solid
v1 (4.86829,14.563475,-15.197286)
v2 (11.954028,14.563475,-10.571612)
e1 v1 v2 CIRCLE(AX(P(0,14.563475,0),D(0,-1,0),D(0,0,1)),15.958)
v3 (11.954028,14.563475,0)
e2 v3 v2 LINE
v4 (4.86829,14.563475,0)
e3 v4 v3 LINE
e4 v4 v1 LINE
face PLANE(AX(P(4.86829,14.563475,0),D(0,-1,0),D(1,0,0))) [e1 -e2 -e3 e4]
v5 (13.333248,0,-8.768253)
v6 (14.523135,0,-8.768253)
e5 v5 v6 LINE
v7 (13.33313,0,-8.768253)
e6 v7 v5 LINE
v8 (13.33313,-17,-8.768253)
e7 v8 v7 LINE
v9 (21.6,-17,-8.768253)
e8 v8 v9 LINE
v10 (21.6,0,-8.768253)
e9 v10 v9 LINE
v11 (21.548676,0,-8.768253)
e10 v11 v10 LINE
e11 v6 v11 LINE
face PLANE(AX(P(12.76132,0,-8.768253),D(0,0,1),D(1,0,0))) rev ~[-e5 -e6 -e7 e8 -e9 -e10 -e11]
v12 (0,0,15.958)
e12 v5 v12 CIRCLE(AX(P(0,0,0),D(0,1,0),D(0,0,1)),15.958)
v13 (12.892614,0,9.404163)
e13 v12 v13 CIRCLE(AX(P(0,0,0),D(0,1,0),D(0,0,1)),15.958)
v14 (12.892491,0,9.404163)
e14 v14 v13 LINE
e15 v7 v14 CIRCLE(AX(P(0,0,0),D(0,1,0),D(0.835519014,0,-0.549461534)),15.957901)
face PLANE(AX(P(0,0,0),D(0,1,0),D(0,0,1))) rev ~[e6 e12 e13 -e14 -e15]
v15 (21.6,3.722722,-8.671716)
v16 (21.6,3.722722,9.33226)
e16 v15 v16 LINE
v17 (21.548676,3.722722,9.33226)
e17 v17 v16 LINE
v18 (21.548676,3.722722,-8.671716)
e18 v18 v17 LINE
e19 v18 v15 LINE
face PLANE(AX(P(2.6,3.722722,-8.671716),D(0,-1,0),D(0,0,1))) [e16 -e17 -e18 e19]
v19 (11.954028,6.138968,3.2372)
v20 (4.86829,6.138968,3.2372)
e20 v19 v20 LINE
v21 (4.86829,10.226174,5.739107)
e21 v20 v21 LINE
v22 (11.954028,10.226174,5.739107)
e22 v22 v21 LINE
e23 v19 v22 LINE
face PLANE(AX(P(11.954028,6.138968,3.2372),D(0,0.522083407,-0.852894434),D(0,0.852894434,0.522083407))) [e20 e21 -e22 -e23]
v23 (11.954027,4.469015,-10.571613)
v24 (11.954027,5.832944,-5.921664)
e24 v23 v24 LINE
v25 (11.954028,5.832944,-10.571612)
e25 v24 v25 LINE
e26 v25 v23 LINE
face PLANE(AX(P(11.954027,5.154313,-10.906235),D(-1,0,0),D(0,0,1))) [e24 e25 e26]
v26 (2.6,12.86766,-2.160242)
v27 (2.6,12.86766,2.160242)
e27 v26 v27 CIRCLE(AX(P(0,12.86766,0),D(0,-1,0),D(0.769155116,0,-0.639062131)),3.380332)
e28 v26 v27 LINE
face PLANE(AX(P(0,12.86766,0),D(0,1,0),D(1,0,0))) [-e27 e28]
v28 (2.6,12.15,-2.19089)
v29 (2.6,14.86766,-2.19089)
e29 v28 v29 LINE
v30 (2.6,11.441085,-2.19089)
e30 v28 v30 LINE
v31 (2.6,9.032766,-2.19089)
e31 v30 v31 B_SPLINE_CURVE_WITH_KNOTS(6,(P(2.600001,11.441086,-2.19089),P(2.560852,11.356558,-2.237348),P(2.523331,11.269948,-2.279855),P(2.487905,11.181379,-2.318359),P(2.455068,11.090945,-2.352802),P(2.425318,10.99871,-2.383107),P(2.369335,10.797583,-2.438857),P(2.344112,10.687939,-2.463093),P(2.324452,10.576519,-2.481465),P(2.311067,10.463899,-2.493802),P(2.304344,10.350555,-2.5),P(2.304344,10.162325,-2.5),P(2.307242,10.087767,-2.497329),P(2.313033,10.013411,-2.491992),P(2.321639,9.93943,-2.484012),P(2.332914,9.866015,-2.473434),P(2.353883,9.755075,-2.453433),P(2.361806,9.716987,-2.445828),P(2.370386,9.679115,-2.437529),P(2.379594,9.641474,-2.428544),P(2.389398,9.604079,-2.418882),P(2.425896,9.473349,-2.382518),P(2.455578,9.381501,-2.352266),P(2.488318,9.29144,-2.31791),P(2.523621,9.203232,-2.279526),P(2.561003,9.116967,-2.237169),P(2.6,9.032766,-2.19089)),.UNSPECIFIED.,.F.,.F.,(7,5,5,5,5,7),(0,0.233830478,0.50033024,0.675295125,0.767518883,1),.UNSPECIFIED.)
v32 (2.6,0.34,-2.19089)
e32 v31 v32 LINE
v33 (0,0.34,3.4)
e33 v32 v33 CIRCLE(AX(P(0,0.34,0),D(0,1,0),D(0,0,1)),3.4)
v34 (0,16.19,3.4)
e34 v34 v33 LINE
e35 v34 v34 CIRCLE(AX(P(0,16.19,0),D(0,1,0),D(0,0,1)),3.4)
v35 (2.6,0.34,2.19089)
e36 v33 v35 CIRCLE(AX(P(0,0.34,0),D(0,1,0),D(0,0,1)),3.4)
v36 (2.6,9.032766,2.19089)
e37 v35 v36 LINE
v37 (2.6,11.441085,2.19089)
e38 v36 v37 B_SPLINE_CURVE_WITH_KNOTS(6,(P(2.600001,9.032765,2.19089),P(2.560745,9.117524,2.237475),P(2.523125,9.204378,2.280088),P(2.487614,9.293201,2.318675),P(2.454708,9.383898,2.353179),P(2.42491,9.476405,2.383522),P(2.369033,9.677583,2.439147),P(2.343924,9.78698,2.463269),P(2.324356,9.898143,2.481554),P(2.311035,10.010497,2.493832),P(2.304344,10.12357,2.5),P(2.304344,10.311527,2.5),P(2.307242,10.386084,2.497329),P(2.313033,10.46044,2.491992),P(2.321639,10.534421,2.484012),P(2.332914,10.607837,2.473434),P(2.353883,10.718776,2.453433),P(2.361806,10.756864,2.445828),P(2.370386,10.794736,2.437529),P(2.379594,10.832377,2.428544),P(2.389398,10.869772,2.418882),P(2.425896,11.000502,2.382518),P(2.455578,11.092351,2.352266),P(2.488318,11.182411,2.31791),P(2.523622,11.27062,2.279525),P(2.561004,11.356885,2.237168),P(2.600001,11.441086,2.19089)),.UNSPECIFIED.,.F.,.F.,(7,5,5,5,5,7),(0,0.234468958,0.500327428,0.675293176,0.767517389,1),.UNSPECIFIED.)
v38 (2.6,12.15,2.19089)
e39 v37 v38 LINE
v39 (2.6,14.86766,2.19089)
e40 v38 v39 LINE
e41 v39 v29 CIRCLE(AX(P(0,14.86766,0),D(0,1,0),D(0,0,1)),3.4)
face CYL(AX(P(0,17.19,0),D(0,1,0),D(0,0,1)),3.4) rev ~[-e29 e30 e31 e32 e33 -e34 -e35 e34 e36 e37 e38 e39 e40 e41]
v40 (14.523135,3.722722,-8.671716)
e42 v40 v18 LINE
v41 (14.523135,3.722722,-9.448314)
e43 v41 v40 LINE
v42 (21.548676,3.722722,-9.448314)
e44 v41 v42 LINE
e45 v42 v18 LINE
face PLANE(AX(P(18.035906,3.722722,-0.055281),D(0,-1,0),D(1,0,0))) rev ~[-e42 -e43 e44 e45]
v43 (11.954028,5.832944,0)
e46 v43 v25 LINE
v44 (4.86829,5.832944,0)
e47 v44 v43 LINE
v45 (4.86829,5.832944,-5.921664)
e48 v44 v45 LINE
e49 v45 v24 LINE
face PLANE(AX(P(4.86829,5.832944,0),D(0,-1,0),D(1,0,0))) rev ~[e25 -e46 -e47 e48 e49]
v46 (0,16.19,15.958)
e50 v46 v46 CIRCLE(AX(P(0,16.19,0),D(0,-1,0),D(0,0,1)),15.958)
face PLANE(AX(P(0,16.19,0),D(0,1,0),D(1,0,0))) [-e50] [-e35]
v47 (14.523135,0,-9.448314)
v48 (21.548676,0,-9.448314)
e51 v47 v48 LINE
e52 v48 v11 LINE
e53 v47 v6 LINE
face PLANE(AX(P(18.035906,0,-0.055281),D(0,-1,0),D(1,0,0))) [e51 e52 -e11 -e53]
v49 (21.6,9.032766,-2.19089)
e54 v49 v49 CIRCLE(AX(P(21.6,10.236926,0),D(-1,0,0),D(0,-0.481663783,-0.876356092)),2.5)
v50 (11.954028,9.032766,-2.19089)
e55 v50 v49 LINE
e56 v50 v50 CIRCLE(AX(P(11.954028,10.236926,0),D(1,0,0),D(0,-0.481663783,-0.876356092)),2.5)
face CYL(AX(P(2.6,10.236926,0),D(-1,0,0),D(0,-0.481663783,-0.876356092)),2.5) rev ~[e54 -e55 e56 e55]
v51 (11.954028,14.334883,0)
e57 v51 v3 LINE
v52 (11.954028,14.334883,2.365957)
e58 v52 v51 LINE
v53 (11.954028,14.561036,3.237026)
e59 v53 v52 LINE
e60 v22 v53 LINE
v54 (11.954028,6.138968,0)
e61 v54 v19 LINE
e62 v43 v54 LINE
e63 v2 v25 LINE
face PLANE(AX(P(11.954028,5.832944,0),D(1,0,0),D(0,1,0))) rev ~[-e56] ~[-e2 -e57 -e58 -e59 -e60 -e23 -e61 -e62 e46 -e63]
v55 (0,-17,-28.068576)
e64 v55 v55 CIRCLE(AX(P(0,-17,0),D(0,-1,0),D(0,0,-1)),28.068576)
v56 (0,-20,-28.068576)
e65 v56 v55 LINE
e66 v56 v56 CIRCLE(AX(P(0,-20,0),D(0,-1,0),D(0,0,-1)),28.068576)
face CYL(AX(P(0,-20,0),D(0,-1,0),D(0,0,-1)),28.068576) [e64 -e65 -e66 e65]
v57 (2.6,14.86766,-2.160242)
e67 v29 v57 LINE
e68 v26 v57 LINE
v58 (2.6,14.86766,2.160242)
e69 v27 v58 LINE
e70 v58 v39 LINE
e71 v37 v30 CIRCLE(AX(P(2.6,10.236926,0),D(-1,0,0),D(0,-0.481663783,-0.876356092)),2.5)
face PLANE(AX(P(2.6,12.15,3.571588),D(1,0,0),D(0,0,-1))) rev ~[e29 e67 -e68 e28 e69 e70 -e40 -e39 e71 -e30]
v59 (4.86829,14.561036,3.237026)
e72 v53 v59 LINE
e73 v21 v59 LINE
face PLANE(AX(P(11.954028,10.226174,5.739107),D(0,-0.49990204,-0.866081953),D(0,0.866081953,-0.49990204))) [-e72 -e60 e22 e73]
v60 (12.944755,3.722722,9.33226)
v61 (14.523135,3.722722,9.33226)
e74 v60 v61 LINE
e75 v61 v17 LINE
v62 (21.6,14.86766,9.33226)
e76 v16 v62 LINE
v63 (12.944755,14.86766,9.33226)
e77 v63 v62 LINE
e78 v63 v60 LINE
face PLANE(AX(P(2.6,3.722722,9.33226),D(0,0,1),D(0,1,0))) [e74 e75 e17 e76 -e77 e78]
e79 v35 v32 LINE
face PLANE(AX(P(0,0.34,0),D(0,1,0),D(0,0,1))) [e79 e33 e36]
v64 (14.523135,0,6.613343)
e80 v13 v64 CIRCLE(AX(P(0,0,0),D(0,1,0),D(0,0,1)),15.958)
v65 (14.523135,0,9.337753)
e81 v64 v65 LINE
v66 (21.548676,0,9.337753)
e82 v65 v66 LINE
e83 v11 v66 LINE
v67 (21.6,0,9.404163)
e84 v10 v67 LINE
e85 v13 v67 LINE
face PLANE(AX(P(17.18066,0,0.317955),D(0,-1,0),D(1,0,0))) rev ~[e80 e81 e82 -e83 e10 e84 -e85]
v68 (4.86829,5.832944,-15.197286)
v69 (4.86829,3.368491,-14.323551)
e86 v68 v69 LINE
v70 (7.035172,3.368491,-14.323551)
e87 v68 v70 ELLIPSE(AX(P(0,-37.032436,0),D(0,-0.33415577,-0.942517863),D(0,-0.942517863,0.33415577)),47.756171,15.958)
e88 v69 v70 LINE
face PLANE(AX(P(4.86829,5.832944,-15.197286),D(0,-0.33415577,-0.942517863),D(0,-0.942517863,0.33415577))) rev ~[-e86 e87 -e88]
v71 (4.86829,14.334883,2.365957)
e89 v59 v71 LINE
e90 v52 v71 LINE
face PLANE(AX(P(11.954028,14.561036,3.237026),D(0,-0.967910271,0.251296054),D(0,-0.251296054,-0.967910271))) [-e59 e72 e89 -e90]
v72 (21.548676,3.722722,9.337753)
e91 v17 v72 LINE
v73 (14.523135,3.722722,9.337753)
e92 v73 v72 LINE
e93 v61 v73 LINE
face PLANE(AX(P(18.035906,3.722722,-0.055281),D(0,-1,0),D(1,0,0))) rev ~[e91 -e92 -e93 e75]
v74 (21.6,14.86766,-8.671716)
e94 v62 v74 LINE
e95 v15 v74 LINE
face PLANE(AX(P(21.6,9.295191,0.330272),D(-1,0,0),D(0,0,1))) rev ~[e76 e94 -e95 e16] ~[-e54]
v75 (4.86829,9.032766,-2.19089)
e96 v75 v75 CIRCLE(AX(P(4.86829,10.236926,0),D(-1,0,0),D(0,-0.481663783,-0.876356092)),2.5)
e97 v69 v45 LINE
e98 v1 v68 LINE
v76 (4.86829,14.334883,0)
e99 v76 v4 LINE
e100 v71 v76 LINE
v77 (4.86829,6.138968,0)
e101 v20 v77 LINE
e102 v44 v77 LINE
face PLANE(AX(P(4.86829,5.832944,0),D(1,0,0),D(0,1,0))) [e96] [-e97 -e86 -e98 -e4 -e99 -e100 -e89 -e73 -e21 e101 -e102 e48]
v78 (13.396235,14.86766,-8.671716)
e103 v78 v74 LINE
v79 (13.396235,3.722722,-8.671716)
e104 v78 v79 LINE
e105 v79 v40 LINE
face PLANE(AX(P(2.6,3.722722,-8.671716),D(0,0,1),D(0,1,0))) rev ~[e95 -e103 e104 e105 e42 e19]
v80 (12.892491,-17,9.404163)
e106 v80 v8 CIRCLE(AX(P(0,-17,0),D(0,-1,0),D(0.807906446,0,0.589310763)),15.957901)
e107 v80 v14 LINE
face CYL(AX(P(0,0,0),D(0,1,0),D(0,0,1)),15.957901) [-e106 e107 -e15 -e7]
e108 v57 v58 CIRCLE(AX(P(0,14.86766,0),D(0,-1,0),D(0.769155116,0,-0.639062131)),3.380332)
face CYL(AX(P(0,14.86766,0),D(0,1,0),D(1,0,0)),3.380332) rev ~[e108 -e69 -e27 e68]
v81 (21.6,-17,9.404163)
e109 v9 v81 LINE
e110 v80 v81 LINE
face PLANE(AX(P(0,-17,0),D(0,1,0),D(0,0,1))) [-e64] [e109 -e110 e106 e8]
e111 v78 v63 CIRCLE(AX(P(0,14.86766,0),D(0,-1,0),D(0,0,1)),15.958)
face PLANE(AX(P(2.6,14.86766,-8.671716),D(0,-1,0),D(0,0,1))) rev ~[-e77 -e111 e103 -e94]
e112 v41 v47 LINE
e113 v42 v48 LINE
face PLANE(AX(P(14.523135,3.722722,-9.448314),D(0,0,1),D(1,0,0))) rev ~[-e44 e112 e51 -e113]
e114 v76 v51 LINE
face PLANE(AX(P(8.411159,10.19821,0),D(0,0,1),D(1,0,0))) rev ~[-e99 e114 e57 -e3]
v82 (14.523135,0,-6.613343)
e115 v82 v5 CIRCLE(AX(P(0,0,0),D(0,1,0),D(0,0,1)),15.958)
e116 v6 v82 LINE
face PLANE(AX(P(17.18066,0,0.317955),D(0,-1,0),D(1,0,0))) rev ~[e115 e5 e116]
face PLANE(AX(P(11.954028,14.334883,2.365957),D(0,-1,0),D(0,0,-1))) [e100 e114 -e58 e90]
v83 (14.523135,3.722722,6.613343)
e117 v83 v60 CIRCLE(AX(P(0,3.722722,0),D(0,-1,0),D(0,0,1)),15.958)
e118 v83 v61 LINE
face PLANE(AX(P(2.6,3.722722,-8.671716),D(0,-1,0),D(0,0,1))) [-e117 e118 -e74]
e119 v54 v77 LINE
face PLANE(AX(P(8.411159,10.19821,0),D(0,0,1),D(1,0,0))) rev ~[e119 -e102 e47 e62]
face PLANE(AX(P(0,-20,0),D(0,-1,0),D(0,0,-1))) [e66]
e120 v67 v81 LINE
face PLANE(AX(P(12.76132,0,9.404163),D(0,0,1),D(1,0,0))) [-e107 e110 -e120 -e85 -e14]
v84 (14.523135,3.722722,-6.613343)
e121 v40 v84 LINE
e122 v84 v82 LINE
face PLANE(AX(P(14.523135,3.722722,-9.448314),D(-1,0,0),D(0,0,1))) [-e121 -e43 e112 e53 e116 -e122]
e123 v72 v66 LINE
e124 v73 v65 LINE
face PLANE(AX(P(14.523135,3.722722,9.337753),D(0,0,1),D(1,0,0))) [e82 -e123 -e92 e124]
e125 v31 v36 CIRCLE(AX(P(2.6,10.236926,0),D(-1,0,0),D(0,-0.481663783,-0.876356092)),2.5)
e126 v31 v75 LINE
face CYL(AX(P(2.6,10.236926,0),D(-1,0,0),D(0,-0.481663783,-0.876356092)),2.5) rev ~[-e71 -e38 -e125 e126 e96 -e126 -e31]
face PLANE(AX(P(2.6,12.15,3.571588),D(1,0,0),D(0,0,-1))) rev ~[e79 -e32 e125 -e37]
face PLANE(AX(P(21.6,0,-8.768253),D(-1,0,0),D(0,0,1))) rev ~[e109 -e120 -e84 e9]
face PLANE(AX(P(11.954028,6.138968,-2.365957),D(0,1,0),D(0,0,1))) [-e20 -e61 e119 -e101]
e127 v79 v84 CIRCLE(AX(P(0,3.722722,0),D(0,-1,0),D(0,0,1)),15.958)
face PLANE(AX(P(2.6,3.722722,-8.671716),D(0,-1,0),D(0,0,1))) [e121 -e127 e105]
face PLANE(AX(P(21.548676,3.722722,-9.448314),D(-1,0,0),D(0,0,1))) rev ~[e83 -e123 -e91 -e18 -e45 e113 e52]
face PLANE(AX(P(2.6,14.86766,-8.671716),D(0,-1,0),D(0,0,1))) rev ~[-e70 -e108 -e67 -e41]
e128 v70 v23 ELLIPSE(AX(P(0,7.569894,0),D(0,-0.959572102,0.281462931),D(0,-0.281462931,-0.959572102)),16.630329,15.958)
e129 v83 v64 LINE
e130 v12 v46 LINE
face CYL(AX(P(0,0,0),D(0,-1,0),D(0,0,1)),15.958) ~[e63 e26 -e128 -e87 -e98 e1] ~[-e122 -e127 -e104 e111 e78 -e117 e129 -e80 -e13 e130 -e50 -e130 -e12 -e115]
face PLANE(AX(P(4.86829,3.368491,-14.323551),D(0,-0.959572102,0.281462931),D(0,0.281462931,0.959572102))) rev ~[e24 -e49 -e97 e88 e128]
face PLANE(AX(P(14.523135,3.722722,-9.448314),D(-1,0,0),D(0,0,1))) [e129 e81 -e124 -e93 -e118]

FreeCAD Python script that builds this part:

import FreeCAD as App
import Part
import Sketcher

V = App.Vector
Q = App.Units.Quantity


def add_polygon(sketch, points):
    """Adds a closed chain of lines whose ends are joined by coincident constraints."""
    first, n = sketch.GeometryCount, len(points)
    for a, b in zip(points, points[1:] + points[:1]):
        sketch.addGeometry(Part.LineSegment(App.Vector(*a, 0), App.Vector(*b, 0)), False)
    for i in range(n):
        sketch.addConstraint(Sketcher.Constraint("Coincident", first + i, 2, first + (i + 1) % n, 1))

doc = App.newDocument("Part")
body = doc.addObject("PartDesign::Body", "Body")

# Sketch on XZ plane
sketch1 = body.newObject("Sketcher::SketchObject", "Sketch")
sketch1.AttachmentSupport = (doc.getObject("XZ_Plane"), [""])
sketch1.MapMode = "FlatFace"
sketch1.addGeometry(Part.Circle(V(0, 0, 0), V(0, 0, 1), 16), False)
sketch1.addConstraint(Sketcher.Constraint("Coincident", 0, 3, -1, 1))
sketch1.addConstraint(Sketcher.Constraint("Diameter", 0, Q("31.916 mm")))
pad1 = body.newObject("PartDesign::Pad", "Pad")
pad1.Profile = sketch1
pad1.Length = 17.19
pad1.Reversed = True

# Sketch on XZ plane
sketch2 = body.newObject("Sketcher::SketchObject", "Sketch001")
sketch2.AttachmentSupport = (doc.getObject("XZ_Plane"), [""])
sketch2.MapMode = "FlatFace"
sketch2.AttachmentOffset = App.Placement(V(0, 0, -17.19), App.Rotation())
sketch2.addGeometry(Part.Circle(V(0, 0, 0), V(0, 0, 1), 3.4), False)
sketch2.addConstraint(Sketcher.Constraint("Coincident", 0, 3, -1, 1))
sketch2.addConstraint(Sketcher.Constraint("Diameter", 0, Q("6.8 mm")))
pocket1 = body.newObject("PartDesign::Pocket", "Pocket")
pocket1.Profile = sketch2
pocket1.Length = 16.85
pocket1.Reversed = True

# Sketch on XZ plane
sketch3 = body.newObject("Sketcher::SketchObject", "Sketch002")
sketch3.AttachmentSupport = (doc.getObject("XZ_Plane"), [""])
sketch3.MapMode = "FlatFace"
sketch3.AttachmentOffset = App.Placement(V(0, 0, -12.15), App.Rotation())
add_polygon(sketch3, [(2.6, -3.6), (2.6, 3.6), (4.2, 3.6), (4.2, -3.6)])  # lines 0-3
sketch3.addConstraint(Sketcher.Constraint("Vertical", 0))
sketch3.addConstraint(Sketcher.Constraint("Horizontal", 1))
sketch3.addConstraint(Sketcher.Constraint("Vertical", 2))
sketch3.addConstraint(Sketcher.Constraint("Horizontal", 3))
sketch3.addConstraint(Sketcher.Constraint("DistanceX", -1, 1, 0, 2, Q("2.6 mm")))
sketch3.addConstraint(Sketcher.Constraint("DistanceX", 1, 1, 1, 2, Q("1.550685 mm")))
sketch3.addConstraint(Sketcher.Constraint("DistanceY", 0, 1, 0, 2, Q("7.184216 mm")))
sketch3.addConstraint(Sketcher.Constraint("DistanceY", -1, 1, 0, 2, Q("3.571588 mm")))
pad2 = body.newObject("PartDesign::Pad", "Pad001")
pad2.Profile = sketch3
pad2.Length = 13.55

# Sketch on YZ plane
sketch4 = body.newObject("Sketcher::SketchObject", "Sketch003")
sketch4.AttachmentSupport = (doc.getObject("YZ_Plane"), [""])
sketch4.MapMode = "FlatFace"
sketch4.AttachmentOffset = App.Placement(V(0, 0, 2.6), App.Rotation())
add_polygon(sketch4, [(15, -9), (4, -9), (4, 9), (15, 9)])  # lines 0-3
sketch4.addConstraint(Sketcher.Constraint("Horizontal", 0))
sketch4.addConstraint(Sketcher.Constraint("Vertical", 1))
sketch4.addConstraint(Sketcher.Constraint("Horizontal", 2))
sketch4.addConstraint(Sketcher.Constraint("Vertical", 3))
sketch4.addConstraint(Sketcher.Constraint("DistanceX", 0, 2, 0, 1, Q("11.144938 mm")))
sketch4.addConstraint(Sketcher.Constraint("DistanceY", 1, 1, 1, 2, Q("18.003976 mm")))
sketch4.addConstraint(Sketcher.Constraint("DistanceY", -1, 1, 1, 2, Q("9.33226 mm")))
sketch4.addConstraint(Sketcher.Constraint("DistanceX", -1, 1, 2, 2, Q("14.86766 mm")))
pad3 = body.newObject("PartDesign::Pad", "Pad002")
pad3.Profile = sketch4
pad3.Length = 19

# Sketch on YZ plane
sketch5 = body.newObject("Sketcher::SketchObject", "Sketch004")
sketch5.AttachmentSupport = (doc.getObject("YZ_Plane"), [""])
sketch5.MapMode = "FlatFace"
sketch5.AttachmentOffset = App.Placement(V(0, 0, 2.6), App.Rotation())
sketch5.addGeometry(Part.Circle(V(10.2, 0, 0), V(0, 0, 1), 2.5), False)
sketch5.addConstraint(Sketcher.Constraint("PointOnObject", 0, 3, -1))
sketch5.addConstraint(Sketcher.Constraint("Diameter", 0, Q("5 mm")))
sketch5.addConstraint(Sketcher.Constraint("DistanceX", -1, 1, 0, 3, Q("10.236926 mm")))
pocket2 = body.newObject("PartDesign::Pocket", "Pocket001")
pocket2.Profile = sketch5
pocket2.Type = "TwoLengths"
pocket2.Length = 1
pocket2.Length2 = 19

# Sketch on XZ plane
sketch6 = body.newObject("Sketcher::SketchObject", "Sketch005")
sketch6.AttachmentSupport = (doc.getObject("XZ_Plane"), [""])
sketch6.MapMode = "FlatFace"
sketch6.addGeometry(Part.Circle(V(0, 0, 0), V(0, 0, 1), 50), False)
sketch6.addConstraint(Sketcher.Constraint("Coincident", 0, 3, -1, 1))
sketch6.addConstraint(Sketcher.Constraint("Diameter", 0, Q("100 mm")))
pad4 = body.newObject("PartDesign::Pad", "Pad003")
pad4.Profile = sketch6
pad4.Length = 20

# Sketch on XZ plane
sketch7 = body.newObject("Sketcher::SketchObject", "Sketch006")
sketch7.AttachmentSupport = (doc.getObject("XZ_Plane"), [""])
sketch7.MapMode = "FlatFace"
sketch7.addGeometry(Part.Circle(V(0, 0, 0), V(0, 0, 1), 43), False)
sketch7.addGeometry(Part.Circle(V(0, 0, 0), V(0, 0, 1), 16), False)
sketch7.addConstraint(Sketcher.Constraint("Coincident", 0, 3, -1, 1))
sketch7.addConstraint(Sketcher.Constraint("Coincident", 1, 3, -1, 1))
sketch7.addConstraint(Sketcher.Constraint("Diameter", 0, Q("86 mm")))
sketch7.addConstraint(Sketcher.Constraint("Diameter", 1, Q("31.915802 mm")))
pocket3 = body.newObject("PartDesign::Pocket", "Pocket002")
pocket3.Profile = sketch7
pocket3.Length = 17
pocket3.Reversed = True

# Sketch on XZ plane
sketch8 = body.newObject("Sketcher::SketchObject", "Sketch007")
sketch8.AttachmentSupport = (doc.getObject("XZ_Plane"), [""])
sketch8.MapMode = "FlatFace"
sketch8.addGeometry(Part.Circle(V(0, 0, 0), V(0, 0, 1), 50), False)
sketch8.addGeometry(Part.Circle(V(0, 0, 0), V(0, 0, 1), 43), False)
sketch8.addConstraint(Sketcher.Constraint("Coincident", 0, 3, -1, 1))
sketch8.addConstraint(Sketcher.Constraint("Coincident", 1, 3, -1, 1))
sketch8.addConstraint(Sketcher.Constraint("Diameter", 0, Q("100 mm")))
sketch8.addConstraint(Sketcher.Constraint("Diameter", 1, Q("85.393367 mm")))
pad5 = body.newObject("PartDesign::Pad", "Pad004")
pad5.Profile = sketch8
pad5.Length = 17
pad5.Reversed = True

# Sketch on XY plane
sketch9 = body.newObject("Sketcher::SketchObject", "Sketch008")
sketch9.AttachmentSupport = (doc.getObject("XY_Plane"), [""])
sketch9.MapMode = "FlatFace"
add_polygon(sketch9, [(5, 15), (5, 6), (12, 6), (12, 15)])  # lines 0-3
sketch9.addConstraint(Sketcher.Constraint("Vertical", 0))
sketch9.addConstraint(Sketcher.Constraint("Horizontal", 1))
sketch9.addConstraint(Sketcher.Constraint("Vertical", 2))
sketch9.addConstraint(Sketcher.Constraint("Horizontal", 3))
sketch9.addConstraint(Sketcher.Constraint("DistanceY", 0, 2, 0, 1, Q("8.730532 mm")))
sketch9.addConstraint(Sketcher.Constraint("DistanceX", 1, 1, 1, 2, Q("7.085737 mm")))
sketch9.addConstraint(Sketcher.Constraint("DistanceX", -1, 1, 0, 2, Q("4.86829 mm")))
sketch9.addConstraint(Sketcher.Constraint("DistanceY", -1, 1, 0, 2, Q("5.832944 mm")))
pocket4 = body.newObject("PartDesign::Pocket", "Pocket003")
pocket4.Profile = sketch9
pocket4.Type = "ThroughAll"

# Sketch on YZ plane
sketch10 = body.newObject("Sketcher::SketchObject", "Sketch009")
sketch10.AttachmentSupport = (doc.getObject("YZ_Plane"), [""])
sketch10.MapMode = "FlatFace"
sketch10.AttachmentOffset = App.Placement(V(0, 0, 11.954028), App.Rotation())
add_polygon(sketch10, [(10.2, -4.7), (6.1, -2.4), (6.1, 2.4), (10.2, 4.7), (14.3, 2.4), (14.3, -2.4)])  # lines 0-5
sketch10.addConstraint(Sketcher.Constraint("Vertical", 1))
sketch10.addConstraint(Sketcher.Constraint("Vertical", 4))
sketch10.addConstraint(Sketcher.Constraint("Symmetric", 2, 2, 5, 2, -1))
sketch10.addConstraint(Sketcher.Constraint("Parallel", 0, 3))
sketch10.addConstraint(Sketcher.Constraint("Parallel", 2, 5))
sketch10.addConstraint(Sketcher.Constraint("Horizontal", 1, 2, 3, 2))
sketch10.addConstraint(Sketcher.Constraint("Horizontal", 0, 2, 4, 2))
sketch10.addConstraint(Sketcher.Constraint("Angle", 0, Q("150 deg")))
sketch10.addConstraint(Sketcher.Constraint("DistanceY", 1, 1, 1, 2, Q("4.731913 mm")))
sketch10.addConstraint(Sketcher.Constraint("DistanceX", -1, 1, 0, 2, Q("6.138968 mm")))
sketch10.addConstraint(Sketcher.Constraint("DistanceY", 0, 2, 2, 2, Q("7.09787 mm")))
pocket5 = body.newObject("PartDesign::Pocket", "Pocket004")
pocket5.Profile = sketch10
pocket5.Length = 7.085737

# Sketch on YZ plane
sketch11 = body.newObject("Sketcher::SketchObject", "Sketch010")
sketch11.AttachmentSupport = (doc.getObject("YZ_Plane"), [""])
sketch11.MapMode = "FlatFace"
sketch11.AttachmentOffset = App.Placement(V(0, 0, 21.6), App.Rotation())
sketch11.addGeometry(Part.Circle(V(10, 0, 0), V(0, 0, 1), 6), False)
sketch11.addConstraint(Sketcher.Constraint("PointOnObject", 0, 3, -1))
sketch11.addConstraint(Sketcher.Constraint("Diameter", 0, Q("12 mm")))
sketch11.addConstraint(Sketcher.Constraint("DistanceX", -1, 1, 0, 3, Q("10.236926 mm")))
pocket6 = body.newObject("PartDesign::Pocket", "Pocket005")
pocket6.Profile = sketch11
pocket6.Length = 40
pocket6.Reversed = True

# Sketch on an angled plane
sketch12 = body.newObject("Sketcher::SketchObject", "Sketch011")
sketch12.Placement = App.Placement(V(9.351145, 0, 49.117778), App.Rotation(V(0.982355553, 0, -0.187022904), V(0, 0.999999999, 0), V(0.187022904, 0, 0.982355553), "ZXY"))
sketch12.addGeometry(Part.Circle(V(-7, -15, 0), V(0, 0, 1), 12), False)
sketch12.addConstraint(Sketcher.Constraint("Diameter", 0, Q("24 mm")))
sketch12.addConstraint(Sketcher.Constraint("DistanceX", 0, 3, -1, 1, Q("6.553799 mm")))
sketch12.addConstraint(Sketcher.Constraint("DistanceY", 0, 3, -1, 1, Q("15.044376 mm")))
pocket7 = body.newObject("PartDesign::Pocket", "Pocket006")
pocket7.Profile = sketch12
pocket7.Length = 5

# Sketch on an angled plane
sketch13 = body.newObject("Sketcher::SketchObject", "Sketch012")
sketch13.Placement = App.Placement(V(35.756785, 0, 34.949282), App.Rotation(V(0.698985638, 0, -0.715135706), V(0, 1, 0), V(0.715135706, 0, 0.698985638), "ZXY"))
sketch13.addGeometry(Part.Circle(V(4, 19, 0), V(0, 0, 1), 12), False)
sketch13.addConstraint(Sketcher.Constraint("Diameter", 0, Q("24 mm")))
sketch13.addConstraint(Sketcher.Constraint("DistanceY", -1, 1, 0, 3, Q("19.429209 mm")))
sketch13.addConstraint(Sketcher.Constraint("DistanceX", -1, 1, 0, 3, Q("3.558366 mm")))
pocket8 = body.newObject("PartDesign::Pocket", "Pocket007")
pocket8.Profile = sketch13
pocket8.Length = 5

# Sketch on an angled plane
sketch14 = body.newObject("Sketcher::SketchObject", "Sketch013")
sketch14.Placement = App.Placement(V(34.949282, 0, -35.756785), App.Rotation(V(-0.715135706, 0, -0.698985638), V(0, 1, 0), V(0.698985638, 0, -0.715135706), "ZXY"))
sketch14.addGeometry(Part.Circle(V(5, 18, 0), V(0, 0, 1), 13), False)
sketch14.addConstraint(Sketcher.Constraint("Diameter", 0, Q("25.107051 mm")))
sketch14.addConstraint(Sketcher.Constraint("DistanceX", -1, 1, 0, 3, Q("5.427738 mm")))
sketch14.addConstraint(Sketcher.Constraint("DistanceY", -1, 1, 0, 3, Q("18.490794 mm")))
pocket9 = body.newObject("PartDesign::Pocket", "Pocket008")
pocket9.Profile = sketch14
pocket9.Length = 5

# Sketch on an angled plane
sketch15 = body.newObject("Sketcher::SketchObject", "Sketch014")
sketch15.Placement = App.Placement(V(49.117778, 0, -9.351145), App.Rotation(V(-0.187022904, 0, -0.982355553), V(0, 0.999999999, 0), V(0.982355553, 0, -0.187022904), "ZXY"))
sketch15.addGeometry(Part.Circle(V(-5, -19, 0), V(0, 0, 1), 10), False)
sketch15.addConstraint(Sketcher.Constraint("Diameter", 0, Q("20 mm")))
sketch15.addConstraint(Sketcher.Constraint("DistanceX", 0, 3, -1, 1, Q("4.791176 mm")))
sketch15.addConstraint(Sketcher.Constraint("DistanceY", 0, 3, -1, 1, Q("19.221883 mm")))
pocket10 = body.newObject("PartDesign::Pocket", "Pocket009")
pocket10.Profile = sketch15
pocket10.Length = 5

# Sketch on an angled plane
sketch16 = body.newObject("Sketcher::SketchObject", "Sketch015")
sketch16.Placement = App.Placement(V(-0.570991, 0, -49.99674), App.Rotation(V(-0.999934792, 0, 0.011419823), V(0, 1.000000001, 0), V(-0.011419823, 0, -0.999934792), "ZXY"))
sketch16.addGeometry(Part.Circle(V(5, -20, 0), V(0, 0, 1), 12), False)
sketch16.addConstraint(Sketcher.Constraint("Diameter", 0, Q("23.930666 mm")))
sketch16.addConstraint(Sketcher.Constraint("DistanceY", 0, 3, -1, 1, Q("20.01777 mm")))
sketch16.addConstraint(Sketcher.Constraint("DistanceX", -1, 1, 0, 3, Q("4.525184 mm")))
pocket11 = body.newObject("PartDesign::Pocket", "Pocket010")
pocket11.Profile = sketch16
pocket11.Length = 5

# Sketch on an angled plane
sketch17 = body.newObject("Sketcher::SketchObject", "Sketch016")
sketch17.Placement = App.Placement(V(-41.343772, 0, -28.119255), App.Rotation(V(-0.56238511, 0, 0.826875437), V(0, 1, 0), V(-0.826875437, 0, -0.56238511), "ZXY"))
sketch17.addGeometry(Part.Circle(V(-3, 19, 0), V(0, 0, 1), 10), False)
sketch17.addConstraint(Sketcher.Constraint("Diameter", 0, Q("19.259362 mm")))
sketch17.addConstraint(Sketcher.Constraint("DistanceY", -1, 1, 0, 3, Q("18.643159 mm")))
sketch17.addConstraint(Sketcher.Constraint("DistanceX", 0, 3, -1, 1, Q("2.649824 mm")))
pocket12 = body.newObject("PartDesign::Pocket", "Pocket011")
pocket12.Profile = sketch17
pocket12.Length = 5

# Sketch on an angled plane
sketch18 = body.newObject("Sketcher::SketchObject", "Sketch017")
sketch18.Placement = App.Placement(V(-49.117778, 0, 9.351145), App.Rotation(V(0.187022904, 0, 0.982355553), V(0, 0.999999999, 0), V(-0.982355553, 0, 0.187022904), "ZXY"))
sketch18.addGeometry(Part.Circle(V(-4, -19, 0), V(0, 0, 1), 15), False)
sketch18.addConstraint(Sketcher.Constraint("Diameter", 0, Q("30.024823 mm")))
sketch18.addConstraint(Sketcher.Constraint("DistanceX", 0, 3, -1, 1, Q("4.497651 mm")))
sketch18.addConstraint(Sketcher.Constraint("DistanceY", 0, 3, -1, 1, Q("19.126377 mm")))
pocket13 = body.newObject("PartDesign::Pocket", "Pocket012")
pocket13.Profile = sketch18
pocket13.Length = 5

# Sketch on an angled plane
sketch19 = body.newObject("Sketcher::SketchObject", "Sketch018")
sketch19.Placement = App.Placement(V(-28.119255, 0, 41.343772), App.Rotation(V(0.826875437, 0, 0.56238511), V(0, 1, 0), V(-0.56238511, 0, 0.826875437), "ZXY"))
sketch19.addGeometry(Part.Circle(V(-2, 18, 0), V(0, 0, 1), 12), False)
sketch19.addConstraint(Sketcher.Constraint("Diameter", 0, Q("23.709424 mm")))
sketch19.addConstraint(Sketcher.Constraint("DistanceY", -1, 1, 0, 3, Q("17.622181 mm")))
sketch19.addConstraint(Sketcher.Constraint("DistanceX", 0, 3, -1, 1, Q("2.287517 mm")))
pocket14 = body.newObject("PartDesign::Pocket", "Pocket013")
pocket14.Profile = sketch19
pocket14.Length = 5

# Sketch on XZ plane
sketch20 = body.newObject("Sketcher::SketchObject", "Sketch019")
sketch20.AttachmentSupport = (doc.getObject("XZ_Plane"), [""])
sketch20.MapMode = "FlatFace"
add_polygon(sketch20, [(13, 9), (13, -9), (22, -9), (22, 9)])  # lines 0-3
sketch20.addConstraint(Sketcher.Constraint("Vertical", 0))
sketch20.addConstraint(Sketcher.Constraint("Horizontal", 1))
sketch20.addConstraint(Sketcher.Constraint("Vertical", 2))
sketch20.addConstraint(Sketcher.Constraint("Horizontal", 3))
sketch20.addConstraint(Sketcher.Constraint("DistanceX", -1, 1, 1, 2, Q("21.6 mm")))
sketch20.addConstraint(Sketcher.Constraint("DistanceX", 1, 1, 1, 2, Q("8.83868 mm")))
sketch20.addConstraint(Sketcher.Constraint("DistanceY", 0, 2, 0, 1, Q("18.172415 mm")))
sketch20.addConstraint(Sketcher.Constraint("DistanceY", 0, 2, -1, 1, Q("8.768253 mm")))
pad6 = body.newObject("PartDesign::Pad", "Pad005")
pad6.Profile = sketch20
pad6.Length = 17

# Sketch on XZ plane
sketch21 = body.newObject("Sketcher::SketchObject", "Sketch020")
sketch21.AttachmentSupport = (doc.getObject("XZ_Plane"), [""])
sketch21.MapMode = "FlatFace"
sketch21.AttachmentOffset = App.Placement(V(0, 0, -3.722722), App.Rotation())
add_polygon(sketch21, [(15, 9), (15, -9), (22, -9), (22, 9)])  # lines 0-3
sketch21.addConstraint(Sketcher.Constraint("Vertical", 0))
sketch21.addConstraint(Sketcher.Constraint("Horizontal", 1))
sketch21.addConstraint(Sketcher.Constraint("Vertical", 2))
sketch21.addConstraint(Sketcher.Constraint("Horizontal", 3))
sketch21.addConstraint(Sketcher.Constraint("DistanceX", 1, 1, 1, 2, Q("7.025541 mm")))
sketch21.addConstraint(Sketcher.Constraint("DistanceY", 0, 2, 0, 1, Q("18.786067 mm")))
sketch21.addConstraint(Sketcher.Constraint("DistanceX", -1, 1, 0, 2, Q("14.523135 mm")))
sketch21.addConstraint(Sketcher.Constraint("DistanceY", 0, 2, -1, 1, Q("9.448314 mm")))
pad7 = body.newObject("PartDesign::Pad", "Pad006")
pad7.Profile = sketch21
pad7.Length = 3.722722

# Sketch on XZ plane
sketch22 = body.newObject("Sketcher::SketchObject", "Sketch021")
sketch22.AttachmentSupport = (doc.getObject("XZ_Plane"), [""])
sketch22.MapMode = "FlatFace"
sketch22.AttachmentOffset = App.Placement(V(0, 0, -17.19), App.Rotation())
sketch22.addGeometry(Part.Circle(V(0, 0, 0), V(0, 0, 1), 26), False)
sketch22.addConstraint(Sketcher.Constraint("Coincident", 0, 3, -1, 1))
sketch22.addConstraint(Sketcher.Constraint("Diameter", 0, Q("52.673095 mm")))
pocket15 = body.newObject("PartDesign::Pocket", "Pocket014")
pocket15.Profile = sketch22
pocket15.Length = 1
pocket15.Reversed = True

# Sketch on XZ plane
sketch23 = body.newObject("Sketcher::SketchObject", "Sketch022")
sketch23.AttachmentSupport = (doc.getObject("XZ_Plane"), [""])
sketch23.MapMode = "FlatFace"
sketch23.AttachmentOffset = App.Placement(V(0, 0, -14.86766), App.Rotation())
sketch23.addGeometry(Part.Circle(V(0, 0, 0), V(0, 0, 1), 3.4), False)
sketch23.addConstraint(Sketcher.Constraint("Coincident", 0, 3, -1, 1))
sketch23.addConstraint(Sketcher.Constraint("Diameter", 0, Q("6.760665 mm")))
pocket16 = body.newObject("PartDesign::Pocket", "Pocket015")
pocket16.Profile = sketch23
pocket16.Length = 2
pocket16.Reversed = True

# Sketch on XZ plane
sketch24 = body.newObject("Sketcher::SketchObject", "Sketch023")
sketch24.AttachmentSupport = (doc.getObject("XZ_Plane"), [""])
sketch24.MapMode = "FlatFace"
sketch24.AttachmentOffset = App.Placement(V(0, 0, 20), App.Rotation())
sketch24.addGeometry(Part.Circle(V(0, 0, 0), V(0, 0, 1), 63), False)
sketch24.addGeometry(Part.Circle(V(0, 0, 0), V(0, 0, 1), 28), False)
sketch24.addConstraint(Sketcher.Constraint("Coincident", 0, 3, -1, 1))
sketch24.addConstraint(Sketcher.Constraint("Coincident", 1, 3, -1, 1))
sketch24.addConstraint(Sketcher.Constraint("Diameter", 1, Q("56.137151 mm")))
sketch24.addConstraint(Sketcher.Constraint("Diameter", 0, Q("126.648263 mm")))
pocket17 = body.newObject("PartDesign::Pocket", "Pocket016")
pocket17.Profile = sketch24
pocket17.Type = "ThroughAll"

# Sketch on YZ plane
sketch25 = body.newObject("Sketcher::SketchObject", "Sketch024")
sketch25.AttachmentSupport = (doc.getObject("YZ_Plane"), [""])
sketch25.MapMode = "FlatFace"
sketch25.AttachmentOffset = App.Placement(V(0, 0, 4.86829), App.Rotation())
add_polygon(sketch25, [(3.4, -14.3), (5.8, -15.2), (5.8, -5.9)])  # lines 0-2
sketch25.addConstraint(Sketcher.Constraint("Vertical", 1))
sketch25.addConstraint(Sketcher.Constraint("Distance", 2, Q("8.755869 mm")))
sketch25.addConstraint(Sketcher.Constraint("DistanceY", 1, 1, 1, 2, Q("9.275622 mm")))
sketch25.addConstraint(Sketcher.Constraint("DistanceX", -1, 1, 2, 2, Q("3.368491 mm")))
sketch25.addConstraint(Sketcher.Constraint("DistanceY", 2, 2, -1, 1, Q("14.323551 mm")))
sketch25.addConstraint(Sketcher.Constraint("Distance", 0, Q("2.614754 mm")))
pocket18 = body.newObject("PartDesign::Pocket", "Pocket017")
pocket18.Profile = sketch25
pocket18.Length = 7.085737
pocket18.Reversed = True

# Sketch on YZ plane
sketch26 = body.newObject("Sketcher::SketchObject", "Sketch025")
sketch26.AttachmentSupport = (doc.getObject("YZ_Plane"), [""])
sketch26.MapMode = "FlatFace"
sketch26.AttachmentOffset = App.Placement(V(0, 0, 11.954028), App.Rotation())
add_polygon(sketch26, [(6.1, 2.4), (6.1, 3.2), (10.2, 5.7), (14.6, 3.2), (14.3, 2.4), (10.2, 4.7)])  # lines 0-5
sketch26.addConstraint(Sketcher.Constraint("Vertical", 0))
sketch26.addConstraint(Sketcher.Constraint("Horizontal", 3, 2, 5, 2))
sketch26.addConstraint(Sketcher.Constraint("Equal", 4, 5))
sketch26.addConstraint(Sketcher.Constraint("Angle", 4, Q("150 deg")))
sketch26.addConstraint(Sketcher.Constraint("DistanceY", -1, 1, 0, 2, Q("3.2372 mm")))
sketch26.addConstraint(Sketcher.Constraint("Distance", 1, Q("4.792159 mm")))
sketch26.addConstraint(Sketcher.Constraint("Distance", 2, Q("5.005141 mm")))
sketch26.addConstraint(Sketcher.Constraint("Distance", 3, Q("0.899949 mm")))
sketch26.addConstraint(Sketcher.Constraint("DistanceY", 0, 1, 0, 2, Q("0.871244 mm")))
sketch26.addConstraint(Sketcher.Constraint("DistanceX", -1, 1, 0, 2, Q("6.138968 mm")))
sketch26.addConstraint(Sketcher.Constraint("DistanceY", 2, 2, 1, 2, Q("2.50208 mm")))
sketch26.addConstraint(Sketcher.Constraint("DistanceY", 3, 2, 2, 2, Q("0.87107 mm")))
pocket19 = body.newObject("PartDesign::Pocket", "Pocket018")
pocket19.Profile = sketch26
pocket19.Length = 7.085737

doc.recompute()
